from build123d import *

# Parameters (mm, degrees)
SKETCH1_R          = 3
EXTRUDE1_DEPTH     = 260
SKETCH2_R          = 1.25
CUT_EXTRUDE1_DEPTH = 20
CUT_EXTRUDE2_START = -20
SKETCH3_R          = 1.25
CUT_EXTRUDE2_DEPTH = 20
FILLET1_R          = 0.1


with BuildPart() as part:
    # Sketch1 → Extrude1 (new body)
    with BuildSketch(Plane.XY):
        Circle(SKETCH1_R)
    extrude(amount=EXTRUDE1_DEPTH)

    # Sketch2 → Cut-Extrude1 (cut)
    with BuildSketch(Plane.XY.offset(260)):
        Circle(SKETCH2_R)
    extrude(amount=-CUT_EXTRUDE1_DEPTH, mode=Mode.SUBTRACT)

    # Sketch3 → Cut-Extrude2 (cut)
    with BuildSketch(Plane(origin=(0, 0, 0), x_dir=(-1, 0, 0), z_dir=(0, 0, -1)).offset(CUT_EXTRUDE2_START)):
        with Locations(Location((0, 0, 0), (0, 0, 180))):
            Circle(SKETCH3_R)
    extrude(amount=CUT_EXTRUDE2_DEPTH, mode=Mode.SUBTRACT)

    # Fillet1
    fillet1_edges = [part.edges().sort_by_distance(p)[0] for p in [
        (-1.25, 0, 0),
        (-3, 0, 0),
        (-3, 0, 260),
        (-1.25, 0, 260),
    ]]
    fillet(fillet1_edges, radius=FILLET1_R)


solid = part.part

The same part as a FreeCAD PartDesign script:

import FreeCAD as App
import Part
import Sketcher


def edges_at(feature, points):
    """Names of the edges that pass closest to the given points."""
    edges = feature.Shape.Edges
    near = lambda p: min(range(len(edges)), key=lambda i: edges[i].distToShape(Part.Vertex(*p))[0])
    return sorted({f"Edge{near(p) + 1}" for p in points})

doc = App.newDocument("Part")
body = doc.addObject("PartDesign::Body", "Body")

# Sketch on XY plane
sketch1 = body.newObject("Sketcher::SketchObject", "Sketch")
sketch1.AttachmentSupport = (doc.getObject("XY_Plane"), [""])
sketch1.MapMode = "FlatFace"
sketch1.addGeometry(Part.Circle(App.Vector(0, 0, 0), App.Vector(0, 0, 1), 3), False)
sketch1.addConstraint([
    Sketcher.Constraint("Coincident", 0, 3, -1, 1),
    Sketcher.Constraint("Diameter", 0, 6.0),
])
pad1 = body.newObject("PartDesign::Pad", "Pad")
pad1.Profile = sketch1
pad1.Length = 260

# Sketch on XY plane
sketch2 = body.newObject("Sketcher::SketchObject", "Sketch001")
sketch2.AttachmentSupport = (doc.getObject("XY_Plane"), [""])
sketch2.MapMode = "FlatFace"
sketch2.AttachmentOffset = App.Placement(App.Vector(0, 0, 260), App.Rotation())
sketch2.addGeometry(Part.Circle(App.Vector(0, 0, 0), App.Vector(0, 0, 1), 1.25), False)
sketch2.addConstraint([
    Sketcher.Constraint("Coincident", 0, 3, -1, 1),
    Sketcher.Constraint("Diameter", 0, 2.5),
])
pocket1 = body.newObject("PartDesign::Pocket", "Pocket")
pocket1.Profile = sketch2
pocket1.Length = 20

# Sketch on XY plane
sketch3 = body.newObject("Sketcher::SketchObject", "Sketch002")
sketch3.AttachmentSupport = (doc.getObject("XY_Plane"), [""])
sketch3.MapMode = "FlatFace"
sketch3.AttachmentOffset = App.Placement(App.Vector(0, 0, 20), App.Rotation())
sketch3.addGeometry(Part.Circle(App.Vector(0, 0, 0), App.Vector(0, 0, 1), 1.25), False)
sketch3.addConstraint([
    Sketcher.Constraint("Coincident", 0, 3, -1, 1),
    Sketcher.Constraint("Diameter", 0, 2.5),
])
pocket2 = body.newObject("PartDesign::Pocket", "Pocket001")
pocket2.Profile = sketch3
pocket2.Length = 20
doc.recompute()

fillet = body.newObject("PartDesign::Fillet", "Fillet")
fillet.Base = (pocket2, edges_at(pocket2, [
    (-1.25, 0, 0),
    (-3, 0, 0),
    (-3, 0, 260),
    (-1.25, 0, 260),
]))
fillet.Radius = 0.1

doc.recompute()
